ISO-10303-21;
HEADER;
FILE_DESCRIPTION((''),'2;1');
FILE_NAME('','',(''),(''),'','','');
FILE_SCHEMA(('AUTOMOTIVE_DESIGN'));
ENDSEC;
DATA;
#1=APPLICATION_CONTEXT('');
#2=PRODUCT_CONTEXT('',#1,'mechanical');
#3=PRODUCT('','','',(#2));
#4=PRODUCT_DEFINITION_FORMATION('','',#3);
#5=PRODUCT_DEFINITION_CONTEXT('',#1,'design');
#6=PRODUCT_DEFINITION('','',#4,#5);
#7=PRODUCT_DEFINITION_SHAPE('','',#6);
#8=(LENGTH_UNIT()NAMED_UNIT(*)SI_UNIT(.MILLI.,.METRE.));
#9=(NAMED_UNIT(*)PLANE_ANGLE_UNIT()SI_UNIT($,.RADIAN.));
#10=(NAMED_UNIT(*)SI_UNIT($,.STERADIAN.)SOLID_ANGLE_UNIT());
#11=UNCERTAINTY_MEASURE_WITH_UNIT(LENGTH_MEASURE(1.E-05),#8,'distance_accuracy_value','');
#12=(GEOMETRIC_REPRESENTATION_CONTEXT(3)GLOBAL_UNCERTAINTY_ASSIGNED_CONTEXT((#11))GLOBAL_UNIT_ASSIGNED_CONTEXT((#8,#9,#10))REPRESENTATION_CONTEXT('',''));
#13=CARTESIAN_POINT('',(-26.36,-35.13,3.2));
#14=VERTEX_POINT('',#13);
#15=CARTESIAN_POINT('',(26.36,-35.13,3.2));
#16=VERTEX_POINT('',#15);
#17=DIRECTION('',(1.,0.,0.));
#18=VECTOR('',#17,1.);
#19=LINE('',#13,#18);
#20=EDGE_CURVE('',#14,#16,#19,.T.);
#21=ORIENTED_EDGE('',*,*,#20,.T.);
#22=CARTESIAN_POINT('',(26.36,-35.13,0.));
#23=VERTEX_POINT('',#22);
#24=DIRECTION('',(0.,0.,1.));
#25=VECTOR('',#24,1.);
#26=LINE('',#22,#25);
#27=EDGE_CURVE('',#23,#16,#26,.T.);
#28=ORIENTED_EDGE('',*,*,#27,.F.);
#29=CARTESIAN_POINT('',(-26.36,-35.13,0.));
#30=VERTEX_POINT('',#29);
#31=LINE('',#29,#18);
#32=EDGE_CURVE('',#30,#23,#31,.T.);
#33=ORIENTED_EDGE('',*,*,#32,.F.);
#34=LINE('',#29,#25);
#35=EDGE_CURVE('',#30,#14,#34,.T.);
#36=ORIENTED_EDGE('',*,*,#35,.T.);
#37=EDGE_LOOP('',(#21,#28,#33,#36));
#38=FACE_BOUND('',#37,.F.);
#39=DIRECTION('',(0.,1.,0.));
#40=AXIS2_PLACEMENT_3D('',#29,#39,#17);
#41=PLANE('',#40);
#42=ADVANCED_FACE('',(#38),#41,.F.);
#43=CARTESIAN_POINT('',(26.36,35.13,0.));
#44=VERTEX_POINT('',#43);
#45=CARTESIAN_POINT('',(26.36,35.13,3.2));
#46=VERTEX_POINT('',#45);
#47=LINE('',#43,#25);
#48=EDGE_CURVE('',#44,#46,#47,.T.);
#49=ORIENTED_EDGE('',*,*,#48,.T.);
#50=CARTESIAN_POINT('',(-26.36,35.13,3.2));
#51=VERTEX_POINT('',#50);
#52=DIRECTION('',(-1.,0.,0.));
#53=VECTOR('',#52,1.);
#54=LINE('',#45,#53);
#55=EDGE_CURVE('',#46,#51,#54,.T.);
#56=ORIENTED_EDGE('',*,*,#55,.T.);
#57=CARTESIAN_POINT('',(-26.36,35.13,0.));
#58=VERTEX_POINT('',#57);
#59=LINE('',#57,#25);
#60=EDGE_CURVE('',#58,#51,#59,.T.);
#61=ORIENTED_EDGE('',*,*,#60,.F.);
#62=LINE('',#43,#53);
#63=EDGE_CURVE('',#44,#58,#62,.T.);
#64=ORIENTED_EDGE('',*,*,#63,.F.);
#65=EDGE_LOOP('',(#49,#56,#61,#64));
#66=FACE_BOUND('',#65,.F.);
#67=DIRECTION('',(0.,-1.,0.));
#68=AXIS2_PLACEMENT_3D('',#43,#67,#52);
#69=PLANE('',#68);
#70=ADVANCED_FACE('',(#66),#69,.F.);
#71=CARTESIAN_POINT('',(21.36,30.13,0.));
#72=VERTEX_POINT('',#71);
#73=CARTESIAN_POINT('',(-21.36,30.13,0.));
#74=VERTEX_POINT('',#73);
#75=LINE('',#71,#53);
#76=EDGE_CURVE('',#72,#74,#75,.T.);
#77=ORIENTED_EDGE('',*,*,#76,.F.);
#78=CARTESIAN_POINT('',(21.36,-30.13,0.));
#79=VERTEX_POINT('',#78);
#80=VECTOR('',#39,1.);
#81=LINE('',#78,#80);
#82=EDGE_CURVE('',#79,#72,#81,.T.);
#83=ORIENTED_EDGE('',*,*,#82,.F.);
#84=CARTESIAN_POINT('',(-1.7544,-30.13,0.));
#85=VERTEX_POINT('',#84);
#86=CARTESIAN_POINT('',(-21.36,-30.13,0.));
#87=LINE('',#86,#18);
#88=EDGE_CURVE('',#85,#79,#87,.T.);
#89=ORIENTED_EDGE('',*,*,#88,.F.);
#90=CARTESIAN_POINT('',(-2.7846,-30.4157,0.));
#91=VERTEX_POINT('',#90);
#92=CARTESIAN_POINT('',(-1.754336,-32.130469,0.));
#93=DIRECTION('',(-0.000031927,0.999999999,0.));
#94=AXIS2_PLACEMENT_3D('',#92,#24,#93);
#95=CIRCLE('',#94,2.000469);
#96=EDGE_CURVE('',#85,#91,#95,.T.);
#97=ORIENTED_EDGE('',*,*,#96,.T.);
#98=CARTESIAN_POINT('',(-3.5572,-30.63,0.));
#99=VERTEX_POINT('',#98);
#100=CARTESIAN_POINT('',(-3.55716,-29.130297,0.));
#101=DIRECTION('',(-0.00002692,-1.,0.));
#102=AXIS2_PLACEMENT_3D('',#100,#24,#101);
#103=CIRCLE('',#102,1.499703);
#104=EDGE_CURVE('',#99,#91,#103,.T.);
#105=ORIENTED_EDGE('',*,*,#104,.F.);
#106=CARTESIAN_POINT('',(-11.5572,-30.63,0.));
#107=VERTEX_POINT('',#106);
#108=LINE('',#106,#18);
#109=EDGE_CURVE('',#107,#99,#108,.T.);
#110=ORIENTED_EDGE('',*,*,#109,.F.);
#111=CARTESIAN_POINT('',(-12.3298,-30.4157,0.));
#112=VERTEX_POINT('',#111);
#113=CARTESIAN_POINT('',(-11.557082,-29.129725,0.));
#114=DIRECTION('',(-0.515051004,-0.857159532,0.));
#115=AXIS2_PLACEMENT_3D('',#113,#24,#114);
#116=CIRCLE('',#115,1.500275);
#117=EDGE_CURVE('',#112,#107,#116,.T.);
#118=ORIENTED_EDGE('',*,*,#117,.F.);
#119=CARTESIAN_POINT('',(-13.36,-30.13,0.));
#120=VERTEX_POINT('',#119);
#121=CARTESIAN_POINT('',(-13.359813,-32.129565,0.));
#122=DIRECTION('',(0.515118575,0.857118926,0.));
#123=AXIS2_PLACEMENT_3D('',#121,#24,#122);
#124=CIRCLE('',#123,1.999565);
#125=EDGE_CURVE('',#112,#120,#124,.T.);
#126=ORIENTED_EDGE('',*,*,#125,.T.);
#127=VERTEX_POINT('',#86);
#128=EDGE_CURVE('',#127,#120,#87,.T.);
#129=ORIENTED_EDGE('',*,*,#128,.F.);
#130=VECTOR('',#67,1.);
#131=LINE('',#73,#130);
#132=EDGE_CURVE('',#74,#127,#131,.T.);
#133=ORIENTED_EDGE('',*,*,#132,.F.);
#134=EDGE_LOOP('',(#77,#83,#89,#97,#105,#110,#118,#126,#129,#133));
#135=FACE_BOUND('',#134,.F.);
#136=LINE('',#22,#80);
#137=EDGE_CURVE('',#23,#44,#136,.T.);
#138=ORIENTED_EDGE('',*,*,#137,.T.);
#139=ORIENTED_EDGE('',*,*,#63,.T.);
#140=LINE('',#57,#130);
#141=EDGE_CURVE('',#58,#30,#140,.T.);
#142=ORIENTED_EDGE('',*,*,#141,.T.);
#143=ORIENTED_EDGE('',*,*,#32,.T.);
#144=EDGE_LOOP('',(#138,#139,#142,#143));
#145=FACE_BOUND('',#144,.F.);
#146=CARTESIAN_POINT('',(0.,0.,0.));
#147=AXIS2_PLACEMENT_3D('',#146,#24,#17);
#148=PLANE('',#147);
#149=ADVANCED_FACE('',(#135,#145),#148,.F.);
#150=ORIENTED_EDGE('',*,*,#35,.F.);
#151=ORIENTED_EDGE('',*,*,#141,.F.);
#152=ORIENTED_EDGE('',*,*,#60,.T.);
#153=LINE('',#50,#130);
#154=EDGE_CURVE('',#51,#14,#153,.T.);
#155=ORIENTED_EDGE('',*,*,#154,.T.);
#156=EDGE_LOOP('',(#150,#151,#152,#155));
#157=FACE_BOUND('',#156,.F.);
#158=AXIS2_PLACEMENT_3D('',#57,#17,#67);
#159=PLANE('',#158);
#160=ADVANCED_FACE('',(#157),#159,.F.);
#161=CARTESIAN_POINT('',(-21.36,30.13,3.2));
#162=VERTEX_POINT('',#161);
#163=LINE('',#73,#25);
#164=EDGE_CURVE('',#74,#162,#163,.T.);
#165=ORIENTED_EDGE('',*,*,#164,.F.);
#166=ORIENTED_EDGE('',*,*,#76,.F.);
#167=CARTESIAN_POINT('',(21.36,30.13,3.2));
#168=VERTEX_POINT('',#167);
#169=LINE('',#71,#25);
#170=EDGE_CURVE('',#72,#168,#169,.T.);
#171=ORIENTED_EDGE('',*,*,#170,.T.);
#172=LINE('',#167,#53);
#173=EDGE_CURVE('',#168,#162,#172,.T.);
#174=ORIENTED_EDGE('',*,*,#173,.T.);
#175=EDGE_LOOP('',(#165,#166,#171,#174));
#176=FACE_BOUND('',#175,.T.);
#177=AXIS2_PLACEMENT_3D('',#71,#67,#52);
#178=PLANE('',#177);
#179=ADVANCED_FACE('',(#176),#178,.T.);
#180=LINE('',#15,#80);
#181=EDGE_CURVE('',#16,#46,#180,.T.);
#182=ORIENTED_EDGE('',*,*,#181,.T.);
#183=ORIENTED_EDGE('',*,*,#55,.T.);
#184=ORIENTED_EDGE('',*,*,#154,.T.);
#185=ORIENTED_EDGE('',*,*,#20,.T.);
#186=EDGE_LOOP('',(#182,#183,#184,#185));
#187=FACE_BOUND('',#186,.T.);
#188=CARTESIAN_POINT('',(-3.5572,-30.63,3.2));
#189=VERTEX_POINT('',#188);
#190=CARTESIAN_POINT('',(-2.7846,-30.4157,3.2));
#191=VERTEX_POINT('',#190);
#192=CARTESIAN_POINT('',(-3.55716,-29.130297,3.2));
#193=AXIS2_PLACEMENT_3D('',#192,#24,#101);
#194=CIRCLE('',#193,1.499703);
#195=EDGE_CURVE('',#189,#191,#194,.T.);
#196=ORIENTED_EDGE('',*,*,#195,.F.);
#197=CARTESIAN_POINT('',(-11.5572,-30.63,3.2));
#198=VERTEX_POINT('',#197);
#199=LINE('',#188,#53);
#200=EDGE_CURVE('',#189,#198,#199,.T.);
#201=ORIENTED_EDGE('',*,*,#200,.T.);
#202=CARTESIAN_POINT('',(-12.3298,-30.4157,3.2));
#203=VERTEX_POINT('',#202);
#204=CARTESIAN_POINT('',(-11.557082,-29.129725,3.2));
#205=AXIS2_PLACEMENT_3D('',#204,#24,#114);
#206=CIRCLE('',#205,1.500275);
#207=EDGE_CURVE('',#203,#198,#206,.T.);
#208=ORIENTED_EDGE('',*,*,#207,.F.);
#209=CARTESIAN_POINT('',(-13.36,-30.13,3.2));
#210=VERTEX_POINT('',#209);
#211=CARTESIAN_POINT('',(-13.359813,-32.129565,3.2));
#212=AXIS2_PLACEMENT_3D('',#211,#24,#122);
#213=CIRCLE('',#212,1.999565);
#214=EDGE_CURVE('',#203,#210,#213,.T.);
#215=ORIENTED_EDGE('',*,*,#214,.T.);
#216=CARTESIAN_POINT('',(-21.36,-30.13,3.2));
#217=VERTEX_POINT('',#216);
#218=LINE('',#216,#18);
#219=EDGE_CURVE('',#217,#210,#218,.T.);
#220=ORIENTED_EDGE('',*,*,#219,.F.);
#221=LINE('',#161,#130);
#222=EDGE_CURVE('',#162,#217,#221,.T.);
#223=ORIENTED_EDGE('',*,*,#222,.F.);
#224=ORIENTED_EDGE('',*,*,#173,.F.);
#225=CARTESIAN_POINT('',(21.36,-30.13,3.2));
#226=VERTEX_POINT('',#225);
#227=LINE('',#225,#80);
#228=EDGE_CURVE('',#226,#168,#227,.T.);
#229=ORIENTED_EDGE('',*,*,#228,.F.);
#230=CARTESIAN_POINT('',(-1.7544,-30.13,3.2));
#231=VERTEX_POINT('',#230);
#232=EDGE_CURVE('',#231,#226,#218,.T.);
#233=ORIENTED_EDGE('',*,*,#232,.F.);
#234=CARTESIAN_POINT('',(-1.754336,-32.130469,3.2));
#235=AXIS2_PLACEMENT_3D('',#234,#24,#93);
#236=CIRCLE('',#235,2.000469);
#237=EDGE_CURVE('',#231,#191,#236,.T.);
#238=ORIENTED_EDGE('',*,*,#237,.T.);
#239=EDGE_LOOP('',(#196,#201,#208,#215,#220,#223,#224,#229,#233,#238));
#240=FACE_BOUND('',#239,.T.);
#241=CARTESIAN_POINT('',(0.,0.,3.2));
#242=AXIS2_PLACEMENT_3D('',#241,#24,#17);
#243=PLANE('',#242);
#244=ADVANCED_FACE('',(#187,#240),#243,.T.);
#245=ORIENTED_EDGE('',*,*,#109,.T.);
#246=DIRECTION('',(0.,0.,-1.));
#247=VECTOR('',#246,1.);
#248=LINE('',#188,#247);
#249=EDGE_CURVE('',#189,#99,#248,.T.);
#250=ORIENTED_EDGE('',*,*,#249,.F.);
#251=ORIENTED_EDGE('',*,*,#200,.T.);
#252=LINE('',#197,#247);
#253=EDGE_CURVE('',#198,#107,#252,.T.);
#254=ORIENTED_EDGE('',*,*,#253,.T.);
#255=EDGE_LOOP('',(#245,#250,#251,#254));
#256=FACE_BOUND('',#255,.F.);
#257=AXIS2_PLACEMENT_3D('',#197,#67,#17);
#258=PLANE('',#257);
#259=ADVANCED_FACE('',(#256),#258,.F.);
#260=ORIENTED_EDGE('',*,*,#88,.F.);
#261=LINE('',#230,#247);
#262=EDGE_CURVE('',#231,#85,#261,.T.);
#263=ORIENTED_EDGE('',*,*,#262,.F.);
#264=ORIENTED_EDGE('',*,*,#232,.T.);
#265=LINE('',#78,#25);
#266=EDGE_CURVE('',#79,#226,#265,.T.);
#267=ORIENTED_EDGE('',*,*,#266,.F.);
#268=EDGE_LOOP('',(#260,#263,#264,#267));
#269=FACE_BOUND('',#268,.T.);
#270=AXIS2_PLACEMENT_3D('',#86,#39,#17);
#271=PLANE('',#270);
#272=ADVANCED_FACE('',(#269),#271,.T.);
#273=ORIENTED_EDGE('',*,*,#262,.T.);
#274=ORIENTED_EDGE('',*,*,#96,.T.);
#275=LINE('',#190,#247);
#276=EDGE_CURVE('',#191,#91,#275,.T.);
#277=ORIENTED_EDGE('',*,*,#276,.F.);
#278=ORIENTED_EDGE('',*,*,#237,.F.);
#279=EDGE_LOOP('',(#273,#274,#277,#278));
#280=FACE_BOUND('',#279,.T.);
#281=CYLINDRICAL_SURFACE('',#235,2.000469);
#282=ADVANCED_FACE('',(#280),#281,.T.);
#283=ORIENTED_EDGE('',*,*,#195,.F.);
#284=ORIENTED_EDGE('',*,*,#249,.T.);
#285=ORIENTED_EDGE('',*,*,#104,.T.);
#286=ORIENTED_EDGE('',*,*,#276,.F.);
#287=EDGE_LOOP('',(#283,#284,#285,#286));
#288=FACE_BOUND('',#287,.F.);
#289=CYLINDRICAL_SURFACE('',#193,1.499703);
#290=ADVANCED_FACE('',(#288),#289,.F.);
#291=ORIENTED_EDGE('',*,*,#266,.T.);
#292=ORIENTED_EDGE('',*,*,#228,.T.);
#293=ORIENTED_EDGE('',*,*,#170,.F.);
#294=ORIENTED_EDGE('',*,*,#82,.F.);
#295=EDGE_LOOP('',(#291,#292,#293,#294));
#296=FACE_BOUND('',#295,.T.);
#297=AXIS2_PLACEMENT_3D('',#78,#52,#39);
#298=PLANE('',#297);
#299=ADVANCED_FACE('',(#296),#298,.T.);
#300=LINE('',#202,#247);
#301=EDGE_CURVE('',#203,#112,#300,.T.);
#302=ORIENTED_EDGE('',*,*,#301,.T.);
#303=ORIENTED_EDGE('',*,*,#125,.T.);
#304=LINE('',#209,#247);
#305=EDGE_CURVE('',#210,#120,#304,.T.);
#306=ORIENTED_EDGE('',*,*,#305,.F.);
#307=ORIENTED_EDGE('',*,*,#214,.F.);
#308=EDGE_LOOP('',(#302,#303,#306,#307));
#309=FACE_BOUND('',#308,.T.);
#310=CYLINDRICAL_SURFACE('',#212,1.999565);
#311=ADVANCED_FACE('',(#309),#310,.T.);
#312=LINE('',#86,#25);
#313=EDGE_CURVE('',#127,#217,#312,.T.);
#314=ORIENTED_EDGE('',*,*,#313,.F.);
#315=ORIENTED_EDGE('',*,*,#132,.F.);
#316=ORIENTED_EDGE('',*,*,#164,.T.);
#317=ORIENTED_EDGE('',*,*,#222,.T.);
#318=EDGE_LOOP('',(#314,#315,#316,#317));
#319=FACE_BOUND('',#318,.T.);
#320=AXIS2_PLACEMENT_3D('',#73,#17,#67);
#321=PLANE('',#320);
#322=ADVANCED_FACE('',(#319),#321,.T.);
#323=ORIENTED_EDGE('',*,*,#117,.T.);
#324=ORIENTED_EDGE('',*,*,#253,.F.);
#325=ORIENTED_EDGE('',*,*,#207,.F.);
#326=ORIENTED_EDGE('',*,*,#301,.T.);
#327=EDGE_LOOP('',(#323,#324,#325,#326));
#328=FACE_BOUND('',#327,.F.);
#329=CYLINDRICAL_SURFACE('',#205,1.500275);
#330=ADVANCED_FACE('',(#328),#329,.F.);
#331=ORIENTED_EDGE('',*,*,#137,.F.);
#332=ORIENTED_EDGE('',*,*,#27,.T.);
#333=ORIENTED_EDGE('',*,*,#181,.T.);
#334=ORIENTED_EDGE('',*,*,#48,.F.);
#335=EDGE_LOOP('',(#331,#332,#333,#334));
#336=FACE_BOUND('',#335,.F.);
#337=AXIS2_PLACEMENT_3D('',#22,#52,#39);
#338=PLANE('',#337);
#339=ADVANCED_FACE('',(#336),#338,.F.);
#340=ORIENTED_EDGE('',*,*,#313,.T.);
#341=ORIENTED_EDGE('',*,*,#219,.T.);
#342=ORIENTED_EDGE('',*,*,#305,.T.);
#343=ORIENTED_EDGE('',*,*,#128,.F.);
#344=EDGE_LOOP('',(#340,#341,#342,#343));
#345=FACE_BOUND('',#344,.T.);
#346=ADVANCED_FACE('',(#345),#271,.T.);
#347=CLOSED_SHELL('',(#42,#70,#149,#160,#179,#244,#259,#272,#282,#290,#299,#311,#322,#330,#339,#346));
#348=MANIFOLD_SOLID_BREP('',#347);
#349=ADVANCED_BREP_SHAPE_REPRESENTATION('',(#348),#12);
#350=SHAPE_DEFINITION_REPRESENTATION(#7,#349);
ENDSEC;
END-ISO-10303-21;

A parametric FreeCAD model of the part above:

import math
import FreeCAD as App
import Part
import Sketcher
from FreeCAD import Vector
Q = App.Units.Quantity

doc = App.newDocument("Part")
body = doc.addObject("PartDesign::Body", "Body")

# Sketch on XY plane
sketch1 = doc.addObject("Sketcher::SketchObject", "Sketch")
body.addObject(sketch1)
sketch1.AttachmentSupport = (doc.XY_Plane, [""])
sketch1.MapMode = "FlatFace"
sketch1.addGeometry([
    Part.LineSegment(Vector(-26.36, 35.13, 0), Vector(-26.36, -35.13, 0)),  # 0
    Part.LineSegment(Vector(-26.36, -35.13, 0), Vector(26.36, -35.13, 0)),  # 1
    Part.LineSegment(Vector(26.36, -35.13, 0), Vector(26.36, 35.13, 0)),  # 2
    Part.LineSegment(Vector(26.36, 35.13, 0), Vector(-26.36, 35.13, 0)),  # 3
    Part.LineSegment(Vector(21.36, -30.13, 0), Vector(-21.36, -30.13, 0)),  # 4
    Part.LineSegment(Vector(-21.36, -30.13, 0), Vector(-21.36, 30.13, 0)),  # 5
    Part.LineSegment(Vector(-21.36, 30.13, 0), Vector(21.36, 30.13, 0)),  # 6
    Part.LineSegment(Vector(21.36, 30.13, 0), Vector(21.36, -30.13, 0)),  # 7
], False)
sketch1.addConstraint([
    Sketcher.Constraint("Coincident", 0, 2, 1, 1),
    Sketcher.Constraint("Coincident", 1, 2, 2, 1),
    Sketcher.Constraint("Coincident", 2, 2, 3, 1),
    Sketcher.Constraint("Coincident", 3, 2, 0, 1),
    Sketcher.Constraint("Coincident", 4, 2, 5, 1),
    Sketcher.Constraint("Coincident", 5, 2, 6, 1),
    Sketcher.Constraint("Coincident", 6, 2, 7, 1),
    Sketcher.Constraint("Coincident", 7, 2, 4, 1),
    Sketcher.Constraint("Vertical", 0),
    Sketcher.Constraint("Horizontal", 1),
    Sketcher.Constraint("Vertical", 2),
    Sketcher.Constraint("Horizontal", 3),
    Sketcher.Constraint("Horizontal", 4),
    Sketcher.Constraint("Vertical", 5),
    Sketcher.Constraint("Horizontal", 6),
    Sketcher.Constraint("Vertical", 7),
    Sketcher.Constraint("Symmetric", 0, 2, 2, 2, -1, 1),
    Sketcher.Constraint("Symmetric", 4, 2, 6, 2, -1, 1),
    Sketcher.Constraint("DistanceX", 0, 2, 4, 2, Q("5 mm")),
    Sketcher.Constraint("DistanceY", 0, 2, 4, 2, Q("5 mm")),
    Sketcher.Constraint("DistanceX", 4, 2, 4, 1, Q("42.72 mm")),
    Sketcher.Constraint("DistanceY", 5, 1, 5, 2, Q("60.26 mm")),
])
pad1 = doc.addObject("PartDesign::Pad", "Pad")
body.addObject(pad1)
pad1.Profile = sketch1
pad1.Length = 3.2

# Sketch on XY plane
sketch2 = doc.addObject("Sketcher::SketchObject", "Sketch001")
body.addObject(sketch2)
sketch2.AttachmentSupport = (doc.XY_Plane, [""])
sketch2.MapMode = "FlatFace"
sketch2.AttachmentOffset = App.Placement(Vector(0, 0, 3.2), App.Rotation())
sketch2.addGeometry([
    Part.ArcOfCircle(Part.Circle(Vector(-11.5572, -29.13, 0), Vector(0, 0, 1), 1.499978), math.radians(-121.002407), math.radians(-90)),  # 0
    Part.LineSegment(Vector(-11.5572, -30.63, 0), Vector(-3.5572, -30.63, 0)),  # 1
    Part.ArcOfCircle(Part.Circle(Vector(-3.5572, -29.13, 0), Vector(0, 0, 1), 1.5), math.radians(-90), math.radians(-58.997593)),  # 2
    Part.ArcOfCircle(Part.Circle(Vector(-1.7544, -32.13, 0), Vector(0, 0, 1), 2), math.radians(90), math.radians(121.003552)),  # 3
    Part.LineSegment(Vector(-1.7544, -30.13, 0), Vector(-13.36, -30.13, 0)),  # 4
    Part.ArcOfCircle(Part.Circle(Vector(-13.36, -32.13, 0), Vector(0, 0, 1), 2.000034), math.radians(58.996448), math.radians(90)),  # 5
], False)
sketch2.addConstraint([
    Sketcher.Constraint("Tangent", 0, 2, 1, 1),
    Sketcher.Constraint("Tangent", 1, 2, 2, 1),
    Sketcher.Constraint("Tangent", 2, 2, 3, 2),
    Sketcher.Constraint("Tangent", 3, 1, 4, 1),
    Sketcher.Constraint("Tangent", 4, 2, 5, 2),
    Sketcher.Constraint("Tangent", 5, 1, 0, 1),
    Sketcher.Constraint("Horizontal", 1),
    Sketcher.Constraint("Horizontal", 4),
    Sketcher.Constraint("Equal", 0, 2),
    Sketcher.Constraint("Equal", 3, 5),
    Sketcher.Constraint("Radius", 3, Q("2 mm")),
    Sketcher.Constraint("Radius", 0, Q("1.5 mm")),
    Sketcher.Constraint("DistanceX", 1, 1, 1, 2, Q("8 mm")),
    Sketcher.Constraint("DistanceY", 5, 3, 0, 2, Q("1.5 mm")),
    Sketcher.Constraint("DistanceY", 0, 3, -1, 1, Q("29.13 mm")),
    Sketcher.Constraint("DistanceX", 5, 3, -1, 1, Q("13.36 mm")),
])
pocket1 = doc.addObject("PartDesign::Pocket", "Pocket")
body.addObject(pocket1)
pocket1.Profile = sketch2
pocket1.Length = 3.2

doc.recompute()
